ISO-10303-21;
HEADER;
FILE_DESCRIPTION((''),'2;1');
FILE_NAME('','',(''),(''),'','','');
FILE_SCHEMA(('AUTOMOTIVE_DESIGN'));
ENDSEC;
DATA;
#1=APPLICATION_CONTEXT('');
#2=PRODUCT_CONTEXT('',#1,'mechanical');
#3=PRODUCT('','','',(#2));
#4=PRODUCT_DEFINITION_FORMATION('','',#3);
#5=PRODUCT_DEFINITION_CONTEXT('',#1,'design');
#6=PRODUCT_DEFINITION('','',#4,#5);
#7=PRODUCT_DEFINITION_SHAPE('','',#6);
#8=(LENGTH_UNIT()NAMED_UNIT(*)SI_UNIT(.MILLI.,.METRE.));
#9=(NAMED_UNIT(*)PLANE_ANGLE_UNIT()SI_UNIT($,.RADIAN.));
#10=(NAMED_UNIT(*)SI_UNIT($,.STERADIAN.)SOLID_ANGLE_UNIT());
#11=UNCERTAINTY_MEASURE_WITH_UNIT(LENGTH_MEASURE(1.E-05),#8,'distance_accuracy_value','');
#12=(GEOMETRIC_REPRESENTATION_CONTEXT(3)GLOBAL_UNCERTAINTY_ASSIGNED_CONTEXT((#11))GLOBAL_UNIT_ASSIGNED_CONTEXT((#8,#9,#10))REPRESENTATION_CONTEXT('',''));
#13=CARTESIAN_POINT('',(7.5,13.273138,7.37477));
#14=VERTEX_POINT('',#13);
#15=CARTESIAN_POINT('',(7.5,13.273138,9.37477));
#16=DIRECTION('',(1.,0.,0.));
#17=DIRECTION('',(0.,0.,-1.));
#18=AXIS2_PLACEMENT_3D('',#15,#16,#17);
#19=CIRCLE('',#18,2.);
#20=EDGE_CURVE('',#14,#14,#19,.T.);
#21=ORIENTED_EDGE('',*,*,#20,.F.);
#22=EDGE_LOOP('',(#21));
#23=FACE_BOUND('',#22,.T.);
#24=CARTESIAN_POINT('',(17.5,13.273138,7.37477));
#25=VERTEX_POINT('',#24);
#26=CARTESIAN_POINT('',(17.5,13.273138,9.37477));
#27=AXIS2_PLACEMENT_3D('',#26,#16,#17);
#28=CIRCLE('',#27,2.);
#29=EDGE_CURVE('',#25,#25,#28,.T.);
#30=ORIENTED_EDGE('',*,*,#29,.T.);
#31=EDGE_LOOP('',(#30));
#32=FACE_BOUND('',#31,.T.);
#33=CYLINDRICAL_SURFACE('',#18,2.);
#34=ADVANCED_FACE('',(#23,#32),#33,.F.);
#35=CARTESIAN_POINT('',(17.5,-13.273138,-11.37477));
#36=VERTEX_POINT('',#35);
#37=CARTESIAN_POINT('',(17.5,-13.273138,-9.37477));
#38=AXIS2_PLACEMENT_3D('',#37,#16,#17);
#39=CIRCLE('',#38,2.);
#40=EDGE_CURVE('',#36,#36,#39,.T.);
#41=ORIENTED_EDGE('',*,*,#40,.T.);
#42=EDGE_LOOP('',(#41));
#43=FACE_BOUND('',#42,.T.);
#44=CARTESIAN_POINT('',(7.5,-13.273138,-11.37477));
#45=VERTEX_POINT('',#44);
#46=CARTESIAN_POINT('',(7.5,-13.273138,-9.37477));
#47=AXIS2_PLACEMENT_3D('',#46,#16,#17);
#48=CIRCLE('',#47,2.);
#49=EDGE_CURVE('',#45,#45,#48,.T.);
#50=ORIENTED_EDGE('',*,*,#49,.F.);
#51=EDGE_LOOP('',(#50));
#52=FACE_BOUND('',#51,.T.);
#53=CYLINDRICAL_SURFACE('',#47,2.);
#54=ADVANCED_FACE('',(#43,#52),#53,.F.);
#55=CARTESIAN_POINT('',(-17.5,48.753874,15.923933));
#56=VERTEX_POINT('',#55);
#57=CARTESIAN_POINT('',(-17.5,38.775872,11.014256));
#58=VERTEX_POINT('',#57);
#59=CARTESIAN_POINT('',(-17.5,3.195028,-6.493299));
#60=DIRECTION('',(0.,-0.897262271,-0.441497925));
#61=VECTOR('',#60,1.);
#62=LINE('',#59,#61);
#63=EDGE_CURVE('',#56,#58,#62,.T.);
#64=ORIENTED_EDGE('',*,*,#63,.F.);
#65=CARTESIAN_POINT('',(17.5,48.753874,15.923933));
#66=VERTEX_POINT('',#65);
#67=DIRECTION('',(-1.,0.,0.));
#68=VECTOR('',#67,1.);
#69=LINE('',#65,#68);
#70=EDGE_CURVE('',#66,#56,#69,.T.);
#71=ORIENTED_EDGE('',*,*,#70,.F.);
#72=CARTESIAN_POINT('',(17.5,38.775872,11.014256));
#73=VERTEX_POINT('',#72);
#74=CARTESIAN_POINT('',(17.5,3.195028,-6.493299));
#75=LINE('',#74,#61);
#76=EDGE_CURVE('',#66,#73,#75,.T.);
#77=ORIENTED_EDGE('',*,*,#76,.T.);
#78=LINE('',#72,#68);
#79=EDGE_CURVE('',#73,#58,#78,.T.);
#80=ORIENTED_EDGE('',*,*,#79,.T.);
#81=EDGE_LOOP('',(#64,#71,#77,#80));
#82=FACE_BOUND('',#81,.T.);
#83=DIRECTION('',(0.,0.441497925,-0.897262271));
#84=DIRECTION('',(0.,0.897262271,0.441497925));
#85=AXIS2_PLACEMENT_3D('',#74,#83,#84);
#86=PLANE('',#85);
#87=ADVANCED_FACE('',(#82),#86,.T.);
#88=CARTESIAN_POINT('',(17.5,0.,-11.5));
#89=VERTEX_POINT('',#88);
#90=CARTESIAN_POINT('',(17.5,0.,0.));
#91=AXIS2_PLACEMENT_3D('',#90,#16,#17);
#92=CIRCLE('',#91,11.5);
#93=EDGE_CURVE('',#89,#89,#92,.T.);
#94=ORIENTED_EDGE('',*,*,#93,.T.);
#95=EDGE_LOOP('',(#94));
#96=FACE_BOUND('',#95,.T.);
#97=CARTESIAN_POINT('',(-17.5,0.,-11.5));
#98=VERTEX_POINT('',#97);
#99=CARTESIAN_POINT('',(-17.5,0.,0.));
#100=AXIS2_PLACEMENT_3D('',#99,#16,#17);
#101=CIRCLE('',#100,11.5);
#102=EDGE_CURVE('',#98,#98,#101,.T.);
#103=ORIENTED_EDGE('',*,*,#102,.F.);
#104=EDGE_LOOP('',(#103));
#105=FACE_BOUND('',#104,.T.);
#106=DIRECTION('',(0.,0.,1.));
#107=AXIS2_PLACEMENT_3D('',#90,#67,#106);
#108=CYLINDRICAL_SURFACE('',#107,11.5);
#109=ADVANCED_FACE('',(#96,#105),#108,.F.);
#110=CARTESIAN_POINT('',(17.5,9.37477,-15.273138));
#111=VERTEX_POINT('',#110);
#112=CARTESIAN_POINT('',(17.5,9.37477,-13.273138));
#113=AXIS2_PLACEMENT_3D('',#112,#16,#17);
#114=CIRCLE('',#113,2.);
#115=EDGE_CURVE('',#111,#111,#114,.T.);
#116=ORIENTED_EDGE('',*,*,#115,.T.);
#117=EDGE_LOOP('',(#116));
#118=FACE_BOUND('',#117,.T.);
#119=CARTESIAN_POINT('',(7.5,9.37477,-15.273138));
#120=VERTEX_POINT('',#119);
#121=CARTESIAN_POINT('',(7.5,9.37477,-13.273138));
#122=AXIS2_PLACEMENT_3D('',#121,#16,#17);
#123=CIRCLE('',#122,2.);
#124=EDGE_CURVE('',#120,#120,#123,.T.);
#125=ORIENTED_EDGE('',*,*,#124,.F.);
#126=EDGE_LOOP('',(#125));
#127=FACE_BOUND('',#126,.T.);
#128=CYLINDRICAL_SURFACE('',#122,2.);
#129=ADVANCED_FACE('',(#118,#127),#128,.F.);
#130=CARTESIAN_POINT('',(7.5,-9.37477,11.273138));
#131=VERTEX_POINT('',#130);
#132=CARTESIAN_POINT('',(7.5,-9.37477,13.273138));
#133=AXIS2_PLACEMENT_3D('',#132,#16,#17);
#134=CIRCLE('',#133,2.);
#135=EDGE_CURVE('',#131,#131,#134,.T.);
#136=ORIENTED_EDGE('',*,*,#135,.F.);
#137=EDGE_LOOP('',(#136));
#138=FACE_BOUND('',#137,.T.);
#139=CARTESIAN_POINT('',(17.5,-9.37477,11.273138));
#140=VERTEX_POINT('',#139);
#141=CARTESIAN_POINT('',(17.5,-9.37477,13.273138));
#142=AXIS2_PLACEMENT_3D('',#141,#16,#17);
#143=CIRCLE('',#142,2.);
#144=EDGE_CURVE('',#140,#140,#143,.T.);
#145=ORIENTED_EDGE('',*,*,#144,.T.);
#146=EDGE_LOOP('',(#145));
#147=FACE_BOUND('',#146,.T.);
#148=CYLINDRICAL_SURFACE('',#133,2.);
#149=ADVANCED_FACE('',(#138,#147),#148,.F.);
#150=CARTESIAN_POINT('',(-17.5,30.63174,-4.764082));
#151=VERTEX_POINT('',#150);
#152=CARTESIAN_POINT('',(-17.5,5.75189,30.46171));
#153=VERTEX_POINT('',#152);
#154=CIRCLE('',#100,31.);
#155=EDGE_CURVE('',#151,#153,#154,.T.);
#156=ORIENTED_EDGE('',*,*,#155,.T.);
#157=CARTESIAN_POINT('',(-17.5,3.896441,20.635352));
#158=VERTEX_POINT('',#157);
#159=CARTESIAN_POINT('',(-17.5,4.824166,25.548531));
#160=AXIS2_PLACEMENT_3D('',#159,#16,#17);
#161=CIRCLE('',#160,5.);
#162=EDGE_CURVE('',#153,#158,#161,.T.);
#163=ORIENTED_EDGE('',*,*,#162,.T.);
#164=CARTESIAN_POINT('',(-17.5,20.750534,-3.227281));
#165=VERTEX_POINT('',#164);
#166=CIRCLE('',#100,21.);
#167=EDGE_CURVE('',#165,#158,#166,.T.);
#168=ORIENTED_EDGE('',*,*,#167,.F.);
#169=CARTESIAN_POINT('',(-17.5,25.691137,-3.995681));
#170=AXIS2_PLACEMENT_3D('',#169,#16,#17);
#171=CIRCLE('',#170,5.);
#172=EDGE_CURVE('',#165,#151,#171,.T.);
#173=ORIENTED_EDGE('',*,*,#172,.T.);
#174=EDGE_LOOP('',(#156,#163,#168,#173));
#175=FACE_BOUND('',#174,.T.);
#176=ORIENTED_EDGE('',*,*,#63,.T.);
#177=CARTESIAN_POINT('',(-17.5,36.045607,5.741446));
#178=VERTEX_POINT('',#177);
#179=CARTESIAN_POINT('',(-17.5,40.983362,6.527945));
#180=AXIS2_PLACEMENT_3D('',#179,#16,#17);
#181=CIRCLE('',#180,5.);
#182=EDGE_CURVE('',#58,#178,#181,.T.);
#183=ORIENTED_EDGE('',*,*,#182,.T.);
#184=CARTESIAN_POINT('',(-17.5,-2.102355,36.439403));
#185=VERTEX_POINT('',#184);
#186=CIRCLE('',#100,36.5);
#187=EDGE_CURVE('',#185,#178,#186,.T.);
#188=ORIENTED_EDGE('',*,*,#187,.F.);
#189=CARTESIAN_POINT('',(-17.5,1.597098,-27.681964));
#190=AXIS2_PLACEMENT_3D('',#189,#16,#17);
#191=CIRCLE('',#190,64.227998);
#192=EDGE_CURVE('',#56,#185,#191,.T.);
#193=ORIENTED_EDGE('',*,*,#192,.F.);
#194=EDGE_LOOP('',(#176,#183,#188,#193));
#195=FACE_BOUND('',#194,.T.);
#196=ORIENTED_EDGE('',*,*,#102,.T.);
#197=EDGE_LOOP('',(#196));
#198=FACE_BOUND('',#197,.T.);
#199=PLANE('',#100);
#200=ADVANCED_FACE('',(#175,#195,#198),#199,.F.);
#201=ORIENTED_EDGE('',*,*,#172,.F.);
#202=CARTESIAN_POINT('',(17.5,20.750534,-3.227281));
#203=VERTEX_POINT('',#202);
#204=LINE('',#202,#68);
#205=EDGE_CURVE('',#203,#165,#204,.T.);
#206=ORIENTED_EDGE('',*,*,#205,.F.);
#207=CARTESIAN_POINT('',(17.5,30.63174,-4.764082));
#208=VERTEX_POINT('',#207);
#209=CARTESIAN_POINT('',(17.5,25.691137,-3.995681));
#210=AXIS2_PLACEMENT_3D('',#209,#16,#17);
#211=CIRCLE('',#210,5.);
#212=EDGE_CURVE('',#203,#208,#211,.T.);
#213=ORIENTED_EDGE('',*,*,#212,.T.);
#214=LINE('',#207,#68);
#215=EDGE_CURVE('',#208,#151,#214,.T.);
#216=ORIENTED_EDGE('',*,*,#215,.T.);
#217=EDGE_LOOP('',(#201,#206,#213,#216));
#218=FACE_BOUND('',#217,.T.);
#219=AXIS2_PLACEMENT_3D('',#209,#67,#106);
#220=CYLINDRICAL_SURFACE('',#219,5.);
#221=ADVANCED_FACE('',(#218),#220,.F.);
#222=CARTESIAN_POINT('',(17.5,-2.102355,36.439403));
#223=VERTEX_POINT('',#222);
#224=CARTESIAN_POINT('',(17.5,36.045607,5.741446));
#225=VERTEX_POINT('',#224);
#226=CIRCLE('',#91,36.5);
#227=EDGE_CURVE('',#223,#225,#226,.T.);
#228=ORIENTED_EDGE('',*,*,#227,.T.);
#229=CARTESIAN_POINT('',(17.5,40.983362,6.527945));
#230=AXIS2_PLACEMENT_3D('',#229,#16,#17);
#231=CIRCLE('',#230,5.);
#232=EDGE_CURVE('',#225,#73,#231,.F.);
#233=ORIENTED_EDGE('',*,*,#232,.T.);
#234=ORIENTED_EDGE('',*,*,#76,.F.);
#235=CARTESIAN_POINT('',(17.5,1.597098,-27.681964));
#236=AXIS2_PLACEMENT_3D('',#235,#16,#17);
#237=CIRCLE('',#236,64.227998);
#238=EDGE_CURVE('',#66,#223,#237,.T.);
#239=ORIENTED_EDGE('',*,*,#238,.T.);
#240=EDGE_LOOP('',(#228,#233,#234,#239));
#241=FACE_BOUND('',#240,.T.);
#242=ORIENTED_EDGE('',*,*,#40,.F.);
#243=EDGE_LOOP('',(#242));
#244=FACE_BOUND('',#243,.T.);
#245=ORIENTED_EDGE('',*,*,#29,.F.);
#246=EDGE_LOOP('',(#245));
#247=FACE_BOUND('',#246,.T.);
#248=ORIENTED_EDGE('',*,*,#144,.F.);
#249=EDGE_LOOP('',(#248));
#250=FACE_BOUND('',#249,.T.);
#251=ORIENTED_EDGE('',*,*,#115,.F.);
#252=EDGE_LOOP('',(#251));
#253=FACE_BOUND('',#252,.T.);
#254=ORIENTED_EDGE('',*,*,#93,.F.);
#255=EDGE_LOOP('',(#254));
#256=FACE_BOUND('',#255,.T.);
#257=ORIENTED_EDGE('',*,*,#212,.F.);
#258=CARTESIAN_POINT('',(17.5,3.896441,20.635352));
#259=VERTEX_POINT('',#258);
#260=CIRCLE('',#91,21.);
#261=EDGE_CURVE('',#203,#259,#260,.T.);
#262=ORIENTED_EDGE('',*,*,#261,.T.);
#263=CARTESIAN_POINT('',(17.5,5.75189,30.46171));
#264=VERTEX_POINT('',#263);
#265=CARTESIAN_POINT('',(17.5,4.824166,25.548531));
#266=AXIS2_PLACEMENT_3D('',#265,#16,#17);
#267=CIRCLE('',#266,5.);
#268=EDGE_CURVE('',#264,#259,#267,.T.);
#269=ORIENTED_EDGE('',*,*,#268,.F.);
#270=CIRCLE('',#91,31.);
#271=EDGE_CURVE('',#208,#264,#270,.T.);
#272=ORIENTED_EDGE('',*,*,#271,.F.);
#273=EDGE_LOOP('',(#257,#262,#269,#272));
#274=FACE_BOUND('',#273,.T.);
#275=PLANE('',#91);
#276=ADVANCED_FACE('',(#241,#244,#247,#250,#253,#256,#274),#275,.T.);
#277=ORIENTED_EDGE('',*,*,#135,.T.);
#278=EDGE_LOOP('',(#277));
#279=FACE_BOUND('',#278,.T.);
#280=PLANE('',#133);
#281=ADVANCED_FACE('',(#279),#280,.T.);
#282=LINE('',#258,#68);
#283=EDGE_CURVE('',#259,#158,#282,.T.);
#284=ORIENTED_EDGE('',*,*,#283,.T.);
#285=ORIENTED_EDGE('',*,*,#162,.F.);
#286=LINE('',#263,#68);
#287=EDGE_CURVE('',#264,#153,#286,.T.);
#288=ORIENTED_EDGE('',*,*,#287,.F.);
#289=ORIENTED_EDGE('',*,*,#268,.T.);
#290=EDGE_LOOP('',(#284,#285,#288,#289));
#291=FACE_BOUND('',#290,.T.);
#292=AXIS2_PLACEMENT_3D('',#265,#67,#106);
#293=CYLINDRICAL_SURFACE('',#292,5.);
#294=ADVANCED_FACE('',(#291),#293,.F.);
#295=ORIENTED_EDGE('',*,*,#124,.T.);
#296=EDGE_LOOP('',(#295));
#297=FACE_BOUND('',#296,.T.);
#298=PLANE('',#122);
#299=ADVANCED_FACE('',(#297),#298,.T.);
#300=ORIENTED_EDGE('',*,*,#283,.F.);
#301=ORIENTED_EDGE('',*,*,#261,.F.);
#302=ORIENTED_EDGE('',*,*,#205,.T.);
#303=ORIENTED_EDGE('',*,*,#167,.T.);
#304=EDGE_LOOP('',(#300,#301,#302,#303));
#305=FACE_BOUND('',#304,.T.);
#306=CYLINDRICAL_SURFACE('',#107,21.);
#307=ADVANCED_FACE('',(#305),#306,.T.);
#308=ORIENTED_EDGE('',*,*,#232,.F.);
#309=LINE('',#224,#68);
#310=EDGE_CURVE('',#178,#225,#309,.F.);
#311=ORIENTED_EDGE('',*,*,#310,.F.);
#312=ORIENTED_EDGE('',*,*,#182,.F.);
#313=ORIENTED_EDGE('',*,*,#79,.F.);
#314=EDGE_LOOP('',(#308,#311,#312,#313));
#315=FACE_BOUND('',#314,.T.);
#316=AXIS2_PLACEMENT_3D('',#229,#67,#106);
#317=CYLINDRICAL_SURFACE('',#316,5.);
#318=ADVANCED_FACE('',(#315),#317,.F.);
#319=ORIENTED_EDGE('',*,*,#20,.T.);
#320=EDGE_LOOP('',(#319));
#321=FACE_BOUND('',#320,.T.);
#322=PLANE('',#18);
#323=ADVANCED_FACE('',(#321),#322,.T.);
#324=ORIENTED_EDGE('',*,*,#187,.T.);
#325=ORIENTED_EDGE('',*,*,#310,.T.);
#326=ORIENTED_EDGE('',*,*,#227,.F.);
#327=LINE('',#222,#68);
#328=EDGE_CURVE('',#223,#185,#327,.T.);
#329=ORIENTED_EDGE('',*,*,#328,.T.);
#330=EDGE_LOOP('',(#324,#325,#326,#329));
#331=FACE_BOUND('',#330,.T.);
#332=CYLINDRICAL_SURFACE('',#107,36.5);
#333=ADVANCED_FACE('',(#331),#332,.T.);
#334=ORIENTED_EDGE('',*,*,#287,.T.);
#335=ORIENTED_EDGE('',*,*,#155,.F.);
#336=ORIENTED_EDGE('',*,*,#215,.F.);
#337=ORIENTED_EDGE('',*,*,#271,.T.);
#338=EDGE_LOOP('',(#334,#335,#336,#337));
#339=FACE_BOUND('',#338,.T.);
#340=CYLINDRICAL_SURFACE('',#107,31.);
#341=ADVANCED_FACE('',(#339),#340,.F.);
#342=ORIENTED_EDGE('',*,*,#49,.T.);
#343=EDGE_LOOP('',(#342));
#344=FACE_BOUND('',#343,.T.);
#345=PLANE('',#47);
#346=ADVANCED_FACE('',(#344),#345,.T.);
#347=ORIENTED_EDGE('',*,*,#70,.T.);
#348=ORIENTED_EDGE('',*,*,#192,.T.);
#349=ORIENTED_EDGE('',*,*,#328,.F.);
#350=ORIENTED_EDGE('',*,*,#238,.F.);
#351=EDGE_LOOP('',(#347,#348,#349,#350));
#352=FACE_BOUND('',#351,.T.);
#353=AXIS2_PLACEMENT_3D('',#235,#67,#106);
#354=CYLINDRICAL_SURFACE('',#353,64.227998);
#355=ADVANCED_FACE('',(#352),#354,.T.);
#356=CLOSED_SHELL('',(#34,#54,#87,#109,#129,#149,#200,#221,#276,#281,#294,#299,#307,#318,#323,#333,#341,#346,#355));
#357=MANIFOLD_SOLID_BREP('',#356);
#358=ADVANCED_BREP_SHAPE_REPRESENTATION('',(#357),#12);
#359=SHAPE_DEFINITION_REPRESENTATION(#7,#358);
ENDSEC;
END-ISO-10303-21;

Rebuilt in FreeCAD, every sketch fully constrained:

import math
import FreeCAD as App
import Part
import Sketcher
from FreeCAD import Vector
Q = App.Units.Quantity


def edges_at(feature, points):
    """Names of the edges that pass closest to the given points."""
    edges = feature.Shape.Edges
    near = lambda p: min(range(len(edges)), key=lambda i: edges[i].distToShape(Part.Vertex(*p))[0])
    return sorted({f"Edge{near(p) + 1}" for p in points})

doc = App.newDocument("Part")
params = doc.addObject("Spreadsheet::Sheet", "Params")
for row, (alias, value) in enumerate([
    ("sketch1_diameter", "23 mm"),
    ("sketch1_radius", "5 mm"),
    ("sketch1_radius2", "31 mm"),
    ("sketch1_radius3", "36.5 mm"),
    ("sketch1_length", "15 mm"),
    ("pad1_length", "35 mm"),
    ("fillet_radius", "5 mm"),
    ("sketch2_diameter", "4 mm"),
    ("pocket1_length", "10 mm"),
], start=1):
    params.set(f"A{row}", alias)
    params.set(f"B{row}", "=" + value)
    params.setAlias(f"B{row}", alias)

body = doc.addObject("PartDesign::Body", "Body")

# Sketch on YZ plane
sketch1 = body.newObject("Sketcher::SketchObject", "Sketch")
sketch1.AttachmentSupport = (doc.getObject("YZ_Plane"), [""])
sketch1.MapMode = "FlatFace"
sketch1.addGeometry([
    Part.LineSegment(Vector(35, 9, 0), Vector(49, 16, 0)),  # 0
    Part.ArcOfCircle(Part.Circle(Vector(2, -28, 0), Vector(0, 0, 1), 64), math.radians(43), math.radians(93)),  # 1
    Part.ArcOfCircle(Part.Circle(Vector(0, 0, 0), Vector(0, 0, 1), 36), math.radians(93), math.radians(375)),  # 2
    Part.Circle(Vector(0, 0, 0), Vector(0, 0, 1), 12),  # 3
    Part.ArcOfCircle(Part.Circle(Vector(5, 26, 0), Vector(0, 0, 1), 5), math.radians(79), math.radians(259)),  # 4
    Part.ArcOfCircle(Part.Circle(Vector(0, 0, 0), Vector(0, 0, 1), 31), math.radians(-9), math.radians(79)),  # 5
    Part.ArcOfCircle(Part.Circle(Vector(26, -4, 0), Vector(0, 0, 1), 5), math.radians(171), math.radians(351)),  # 6
    Part.ArcOfCircle(Part.Circle(Vector(0, 0, 0), Vector(0, 0, 1), 21), math.radians(-9), math.radians(79)),  # 7
], False)
sketch1.addConstraint([
    Sketcher.Constraint("Coincident", 0, 2, 1, 1),
    Sketcher.Constraint("Tangent", 1, 2, 2, 1),
    Sketcher.Constraint("Coincident", 2, 2, 0, 1),
    Sketcher.Constraint("Tangent", 4, 1, 5, 2),
    Sketcher.Constraint("Tangent", 5, 1, 6, 2),
    Sketcher.Constraint("Tangent", 6, 1, 7, 1),
    Sketcher.Constraint("Tangent", 7, 2, 4, 2),
    Sketcher.Constraint("Coincident", 2, 3, -1, 1),
    Sketcher.Constraint("Coincident", 3, 3, -1, 1),
    Sketcher.Constraint("Coincident", 5, 3, -1, 1),
    Sketcher.Constraint("Coincident", 7, 3, -1, 1),
    Sketcher.Constraint("Diameter", 3, Q("23 mm")),
    Sketcher.Constraint("Radius", 4, Q("5 mm")),
    Sketcher.Constraint("Radius", 5, Q("31 mm")),
    Sketcher.Constraint("Radius", 2, Q("36.5 mm")),
    Sketcher.Constraint("Distance", 0, Q("15 mm")),
    Sketcher.Constraint("Radius", 1, Q("64.227998 mm")),
    Sketcher.Constraint("DistanceX", -1, 1, 1, 3, Q("1.597098 mm")),
    Sketcher.Constraint("DistanceY", 0, 2, 4, 3, Q("9.624598 mm")),
    Sketcher.Constraint("DistanceY", 5, 1, 6, 3, Q("0.7684 mm")),
    Sketcher.Constraint("DistanceX", 5, 1, 2, 2, Q("4.663199 mm")),
])
sketch1.setExpression("Constraints[11]", "Params.sketch1_diameter")
sketch1.setExpression("Constraints[12]", "Params.sketch1_radius")
sketch1.setExpression("Constraints[13]", "Params.sketch1_radius2")
sketch1.setExpression("Constraints[14]", "Params.sketch1_radius3")
sketch1.setExpression("Constraints[15]", "Params.sketch1_length")
pad1 = body.newObject("PartDesign::Pad", "Pad")
pad1.Profile = sketch1
pad1.setExpression("Length", "Params.pad1_length")
pad1.Midplane = True
doc.recompute()

fillet = body.newObject("PartDesign::Fillet", "Fillet")
fillet.Base = (pad1, edges_at(pad1, [(0, 35.295, 9.301)]))
fillet.setExpression("Radius", "Params.fillet_radius")

# Sketch on YZ plane
sketch2 = body.newObject("Sketcher::SketchObject", "Sketch001")
sketch2.AttachmentSupport = (doc.getObject("YZ_Plane"), [""])
sketch2.MapMode = "FlatFace"
sketch2.AttachmentOffset = App.Placement(Vector(0, 0, 17.5), App.Rotation())
sketch2.addGeometry([
    Part.Circle(Vector(13.3, 9.4, 0), Vector(0, 0, 1), 2),
    Part.Circle(Vector(9.4, -13.3, 0), Vector(0, 0, 1), 2),
    Part.Circle(Vector(-13.3, -9.4, 0), Vector(0, 0, 1), 2),
    Part.Circle(Vector(-9.4, 13.3, 0), Vector(0, 0, 1), 2),
], False)
sketch2.addConstraint([
    Sketcher.Constraint("Equal", 0, 1),
    Sketcher.Constraint("Equal", 1, 2),
    Sketcher.Constraint("Equal", 2, 3),
    Sketcher.Constraint("Symmetric", 0, 3, 2, 3, -1, 1),
    Sketcher.Constraint("Symmetric", 1, 3, 3, 3, -1, 1),
    Sketcher.Constraint("Diameter", 0, Q("4 mm")),
    Sketcher.Constraint("DistanceY", -1, 1, 0, 3, Q("9.37477 mm")),
    Sketcher.Constraint("DistanceX", -1, 1, 1, 3, Q("9.37477 mm")),
    Sketcher.Constraint("DistanceX", -1, 1, 0, 3, Q("13.273138 mm")),
    Sketcher.Constraint("DistanceY", 1, 3, -1, 1, Q("13.273138 mm")),
])
sketch2.setExpression("Constraints[5]", "Params.sketch2_diameter")
pocket1 = body.newObject("PartDesign::Pocket", "Pocket")
pocket1.Profile = sketch2
pocket1.setExpression("Length", "Params.pocket1_length")

doc.recompute()
